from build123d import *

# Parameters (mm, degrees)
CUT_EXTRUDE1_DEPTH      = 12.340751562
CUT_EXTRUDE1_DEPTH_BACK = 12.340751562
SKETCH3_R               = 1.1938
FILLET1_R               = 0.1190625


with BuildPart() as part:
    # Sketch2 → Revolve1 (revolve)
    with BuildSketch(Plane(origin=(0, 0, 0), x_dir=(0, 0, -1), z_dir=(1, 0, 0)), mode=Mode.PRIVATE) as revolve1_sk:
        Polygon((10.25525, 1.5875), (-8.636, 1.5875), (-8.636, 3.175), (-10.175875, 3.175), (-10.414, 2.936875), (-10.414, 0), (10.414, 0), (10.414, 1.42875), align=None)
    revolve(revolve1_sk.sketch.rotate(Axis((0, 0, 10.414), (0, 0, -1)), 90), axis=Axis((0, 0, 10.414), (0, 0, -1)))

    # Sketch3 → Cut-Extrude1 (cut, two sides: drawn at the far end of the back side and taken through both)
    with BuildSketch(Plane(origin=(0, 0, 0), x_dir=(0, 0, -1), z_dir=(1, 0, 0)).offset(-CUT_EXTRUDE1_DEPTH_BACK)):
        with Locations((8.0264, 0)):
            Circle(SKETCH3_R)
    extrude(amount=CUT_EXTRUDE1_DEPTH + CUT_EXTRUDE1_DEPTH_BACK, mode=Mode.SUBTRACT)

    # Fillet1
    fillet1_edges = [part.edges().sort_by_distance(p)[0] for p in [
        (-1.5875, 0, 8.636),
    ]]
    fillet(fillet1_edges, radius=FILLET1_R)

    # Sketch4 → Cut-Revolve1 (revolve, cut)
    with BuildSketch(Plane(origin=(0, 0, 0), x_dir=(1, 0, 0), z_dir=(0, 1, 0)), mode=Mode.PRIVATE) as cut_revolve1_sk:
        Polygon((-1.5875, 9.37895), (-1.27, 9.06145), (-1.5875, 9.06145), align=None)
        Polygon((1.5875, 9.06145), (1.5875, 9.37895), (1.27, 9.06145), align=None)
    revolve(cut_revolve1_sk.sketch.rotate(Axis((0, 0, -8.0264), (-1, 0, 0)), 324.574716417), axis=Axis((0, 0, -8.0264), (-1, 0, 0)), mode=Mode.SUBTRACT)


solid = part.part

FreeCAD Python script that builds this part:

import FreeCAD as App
import Part
import Sketcher
from FreeCAD import Vector
Q = App.Units.Quantity


def edges_at(feature, points):
    """Names of the edges that pass closest to the given points."""
    edges = feature.Shape.Edges
    near = lambda p: min(range(len(edges)), key=lambda i: edges[i].distToShape(Part.Vertex(*p))[0])
    return sorted({f"Edge{near(p) + 1}" for p in points})

doc = App.newDocument("Part")
body = doc.addObject("PartDesign::Body", "Body")

# Sketch on YZ plane
sketch1 = body.newObject("Sketcher::SketchObject", "Sketch")
sketch1.AttachmentSupport = (doc.getObject("YZ_Plane"), [""])
sketch1.MapMode = "FlatFace"
sketch1.addGeometry(Part.LineSegment(Vector(1.59, -10.26, 0), Vector(1.59, 8.64, 0)), False)
sketch1.addGeometry(Part.LineSegment(Vector(1.59, 8.64, 0), Vector(3.17, 8.64, 0)), False)
sketch1.addGeometry(Part.LineSegment(Vector(3.17, 8.64, 0), Vector(3.17, 10.18, 0)), False)
sketch1.addGeometry(Part.LineSegment(Vector(3.17, 10.18, 0), Vector(2.94, 10.41, 0)), False)
sketch1.addGeometry(Part.LineSegment(Vector(2.94, 10.41, 0), Vector(0, 10.41, 0)), False)
sketch1.addGeometry(Part.LineSegment(Vector(0, 10.41, 0), Vector(0, -10.41, 0)), False)
sketch1.addGeometry(Part.LineSegment(Vector(0, -10.41, 0), Vector(1.43, -10.41, 0)), False)
sketch1.addGeometry(Part.LineSegment(Vector(1.43, -10.41, 0), Vector(1.59, -10.26, 0)), False)
sketch1.addConstraint(Sketcher.Constraint("Coincident", 0, 2, 1, 1))
sketch1.addConstraint(Sketcher.Constraint("Coincident", 1, 2, 2, 1))
sketch1.addConstraint(Sketcher.Constraint("Coincident", 2, 2, 3, 1))
sketch1.addConstraint(Sketcher.Constraint("Coincident", 3, 2, 4, 1))
sketch1.addConstraint(Sketcher.Constraint("Coincident", 4, 2, 5, 1))
sketch1.addConstraint(Sketcher.Constraint("Coincident", 5, 2, 6, 1))
sketch1.addConstraint(Sketcher.Constraint("Coincident", 6, 2, 7, 1))
sketch1.addConstraint(Sketcher.Constraint("Coincident", 7, 2, 0, 1))
sketch1.addConstraint(Sketcher.Constraint("Vertical", 0))
sketch1.addConstraint(Sketcher.Constraint("Horizontal", 1))
sketch1.addConstraint(Sketcher.Constraint("Vertical", 2))
sketch1.addConstraint(Sketcher.Constraint("Horizontal", 4))
sketch1.addConstraint(Sketcher.Constraint("Vertical", 5))
sketch1.addConstraint(Sketcher.Constraint("Horizontal", 6))
sketch1.addConstraint(Sketcher.Constraint("Symmetric", 4, 2, 5, 2, -1, 1))
sketch1.addConstraint(Sketcher.Constraint("Perpendicular", 3, 7))
sketch1.addConstraint(Sketcher.Constraint("Angle", 3, Q("135 deg")))
sketch1.addConstraint(Sketcher.Constraint("DistanceY", 5, 2, 5, 1, Q("0.82 in")))
sketch1.addConstraint(Sketcher.Constraint("DistanceX", 1, 1, 1, 2, Q("0.0625 in")))
sketch1.addConstraint(Sketcher.Constraint("DistanceY", -1, 1, 0, 2, Q("0.34 in")))
sketch1.addConstraint(Sketcher.Constraint("DistanceX", -1, 1, 0, 2, Q("0.0625 in")))
sketch1.addConstraint(Sketcher.Constraint("DistanceX", 6, 1, 6, 2, 1.42875))
sketch1.addConstraint(Sketcher.Constraint("Distance", 3, 0.33676))
revolution = body.newObject("PartDesign::Revolution", "Revolution")
revolution.Profile = sketch1
revolution.ReferenceAxis = (sketch1, ["V_Axis"])
revolution.Angle = 360

# Sketch on YZ plane
sketch2 = body.newObject("Sketcher::SketchObject", "Sketch001")
sketch2.AttachmentSupport = (doc.getObject("YZ_Plane"), [""])
sketch2.MapMode = "FlatFace"
sketch2.addGeometry(Part.Circle(Vector(0, -8, 0), Vector(0, 0, 1), 1.2), False)
sketch2.addConstraint(Sketcher.Constraint("PointOnObject", 0, 3, -2))
sketch2.addConstraint(Sketcher.Constraint("Diameter", 0, Q("0.094 in")))
sketch2.addConstraint(Sketcher.Constraint("DistanceY", 0, 3, -1, 1, Q("0.316 in")))
pocket1 = body.newObject("PartDesign::Pocket", "Pocket")
pocket1.Profile = sketch2
pocket1.Type = "ThroughAll"
pocket1.Midplane = True
doc.recompute()

fillet = body.newObject("PartDesign::Fillet", "Fillet")
fillet.Base = (pocket1, edges_at(pocket1, [(-1.587, 0, 8.636)]))
fillet.Radius = 0.119063

# Sketch on XZ plane
sketch3 = body.newObject("Sketcher::SketchObject", "Sketch002")
sketch3.AttachmentSupport = (doc.getObject("XZ_Plane"), [""])
sketch3.MapMode = "FlatFace"
sketch3.addGeometry(Part.LineSegment(Vector(-1.27, -9.06, 0), Vector(-1.59, -9.38, 0)), False)
sketch3.addGeometry(Part.LineSegment(Vector(-1.59, -9.38, 0), Vector(-1.59, -9.06, 0)), False)
sketch3.addGeometry(Part.LineSegment(Vector(-1.59, -9.06, 0), Vector(-1.27, -9.06, 0)), False)
sketch3.addGeometry(Part.LineSegment(Vector(1.59, -9.06, 0), Vector(1.59, -9.38, 0)), False)
sketch3.addGeometry(Part.LineSegment(Vector(1.59, -9.38, 0), Vector(1.27, -9.06, 0)), False)
sketch3.addGeometry(Part.LineSegment(Vector(1.27, -9.06, 0), Vector(1.59, -9.06, 0)), False)
sketch3.addGeometry(Part.LineSegment(Vector(1.59, -8.03, 0), Vector(-1.59, -8.03, 0)), True)  # axis
sketch3.addConstraint(Sketcher.Constraint("Coincident", 0, 2, 1, 1))
sketch3.addConstraint(Sketcher.Constraint("Coincident", 1, 2, 2, 1))
sketch3.addConstraint(Sketcher.Constraint("Coincident", 2, 2, 0, 1))
sketch3.addConstraint(Sketcher.Constraint("Coincident", 3, 2, 4, 1))
sketch3.addConstraint(Sketcher.Constraint("Coincident", 4, 2, 5, 1))
sketch3.addConstraint(Sketcher.Constraint("Coincident", 5, 2, 3, 1))
sketch3.addConstraint(Sketcher.Constraint("Vertical", 1))
sketch3.addConstraint(Sketcher.Constraint("Horizontal", 2))
sketch3.addConstraint(Sketcher.Constraint("Vertical", 3))
sketch3.addConstraint(Sketcher.Constraint("Horizontal", 5))
sketch3.addConstraint(Sketcher.Constraint("Horizontal", 6))
sketch3.addConstraint(Sketcher.Constraint("Symmetric", 0, 2, 3, 2, -2))
sketch3.addConstraint(Sketcher.Constraint("Symmetric", 2, 2, 4, 2, -2))
sketch3.addConstraint(Sketcher.Constraint("Perpendicular", 0, 4))
sketch3.addConstraint(Sketcher.Constraint("Vertical", 5, 2, 6, 1))
sketch3.addConstraint(Sketcher.Constraint("Vertical", 1, 2, 6, 2))
sketch3.addConstraint(Sketcher.Constraint("DistanceX", 2, 2, 4, 2, Q("0.1 in")))
sketch3.addConstraint(Sketcher.Constraint("DistanceX", 6, 2, 6, 1, Q("0.125 in")))
sketch3.addConstraint(Sketcher.Constraint("DistanceY", 6, 1, -1, 1, Q("0.316 in")))
sketch3.addConstraint(Sketcher.Constraint("DistanceY", 0, 2, -1, 1, 9.37895))
groove = body.newObject("PartDesign::Groove", "Groove")
groove.Profile = sketch3
groove.ReferenceAxis = (sketch3, ["Axis0"])
groove.Angle = 360

doc.recompute()
